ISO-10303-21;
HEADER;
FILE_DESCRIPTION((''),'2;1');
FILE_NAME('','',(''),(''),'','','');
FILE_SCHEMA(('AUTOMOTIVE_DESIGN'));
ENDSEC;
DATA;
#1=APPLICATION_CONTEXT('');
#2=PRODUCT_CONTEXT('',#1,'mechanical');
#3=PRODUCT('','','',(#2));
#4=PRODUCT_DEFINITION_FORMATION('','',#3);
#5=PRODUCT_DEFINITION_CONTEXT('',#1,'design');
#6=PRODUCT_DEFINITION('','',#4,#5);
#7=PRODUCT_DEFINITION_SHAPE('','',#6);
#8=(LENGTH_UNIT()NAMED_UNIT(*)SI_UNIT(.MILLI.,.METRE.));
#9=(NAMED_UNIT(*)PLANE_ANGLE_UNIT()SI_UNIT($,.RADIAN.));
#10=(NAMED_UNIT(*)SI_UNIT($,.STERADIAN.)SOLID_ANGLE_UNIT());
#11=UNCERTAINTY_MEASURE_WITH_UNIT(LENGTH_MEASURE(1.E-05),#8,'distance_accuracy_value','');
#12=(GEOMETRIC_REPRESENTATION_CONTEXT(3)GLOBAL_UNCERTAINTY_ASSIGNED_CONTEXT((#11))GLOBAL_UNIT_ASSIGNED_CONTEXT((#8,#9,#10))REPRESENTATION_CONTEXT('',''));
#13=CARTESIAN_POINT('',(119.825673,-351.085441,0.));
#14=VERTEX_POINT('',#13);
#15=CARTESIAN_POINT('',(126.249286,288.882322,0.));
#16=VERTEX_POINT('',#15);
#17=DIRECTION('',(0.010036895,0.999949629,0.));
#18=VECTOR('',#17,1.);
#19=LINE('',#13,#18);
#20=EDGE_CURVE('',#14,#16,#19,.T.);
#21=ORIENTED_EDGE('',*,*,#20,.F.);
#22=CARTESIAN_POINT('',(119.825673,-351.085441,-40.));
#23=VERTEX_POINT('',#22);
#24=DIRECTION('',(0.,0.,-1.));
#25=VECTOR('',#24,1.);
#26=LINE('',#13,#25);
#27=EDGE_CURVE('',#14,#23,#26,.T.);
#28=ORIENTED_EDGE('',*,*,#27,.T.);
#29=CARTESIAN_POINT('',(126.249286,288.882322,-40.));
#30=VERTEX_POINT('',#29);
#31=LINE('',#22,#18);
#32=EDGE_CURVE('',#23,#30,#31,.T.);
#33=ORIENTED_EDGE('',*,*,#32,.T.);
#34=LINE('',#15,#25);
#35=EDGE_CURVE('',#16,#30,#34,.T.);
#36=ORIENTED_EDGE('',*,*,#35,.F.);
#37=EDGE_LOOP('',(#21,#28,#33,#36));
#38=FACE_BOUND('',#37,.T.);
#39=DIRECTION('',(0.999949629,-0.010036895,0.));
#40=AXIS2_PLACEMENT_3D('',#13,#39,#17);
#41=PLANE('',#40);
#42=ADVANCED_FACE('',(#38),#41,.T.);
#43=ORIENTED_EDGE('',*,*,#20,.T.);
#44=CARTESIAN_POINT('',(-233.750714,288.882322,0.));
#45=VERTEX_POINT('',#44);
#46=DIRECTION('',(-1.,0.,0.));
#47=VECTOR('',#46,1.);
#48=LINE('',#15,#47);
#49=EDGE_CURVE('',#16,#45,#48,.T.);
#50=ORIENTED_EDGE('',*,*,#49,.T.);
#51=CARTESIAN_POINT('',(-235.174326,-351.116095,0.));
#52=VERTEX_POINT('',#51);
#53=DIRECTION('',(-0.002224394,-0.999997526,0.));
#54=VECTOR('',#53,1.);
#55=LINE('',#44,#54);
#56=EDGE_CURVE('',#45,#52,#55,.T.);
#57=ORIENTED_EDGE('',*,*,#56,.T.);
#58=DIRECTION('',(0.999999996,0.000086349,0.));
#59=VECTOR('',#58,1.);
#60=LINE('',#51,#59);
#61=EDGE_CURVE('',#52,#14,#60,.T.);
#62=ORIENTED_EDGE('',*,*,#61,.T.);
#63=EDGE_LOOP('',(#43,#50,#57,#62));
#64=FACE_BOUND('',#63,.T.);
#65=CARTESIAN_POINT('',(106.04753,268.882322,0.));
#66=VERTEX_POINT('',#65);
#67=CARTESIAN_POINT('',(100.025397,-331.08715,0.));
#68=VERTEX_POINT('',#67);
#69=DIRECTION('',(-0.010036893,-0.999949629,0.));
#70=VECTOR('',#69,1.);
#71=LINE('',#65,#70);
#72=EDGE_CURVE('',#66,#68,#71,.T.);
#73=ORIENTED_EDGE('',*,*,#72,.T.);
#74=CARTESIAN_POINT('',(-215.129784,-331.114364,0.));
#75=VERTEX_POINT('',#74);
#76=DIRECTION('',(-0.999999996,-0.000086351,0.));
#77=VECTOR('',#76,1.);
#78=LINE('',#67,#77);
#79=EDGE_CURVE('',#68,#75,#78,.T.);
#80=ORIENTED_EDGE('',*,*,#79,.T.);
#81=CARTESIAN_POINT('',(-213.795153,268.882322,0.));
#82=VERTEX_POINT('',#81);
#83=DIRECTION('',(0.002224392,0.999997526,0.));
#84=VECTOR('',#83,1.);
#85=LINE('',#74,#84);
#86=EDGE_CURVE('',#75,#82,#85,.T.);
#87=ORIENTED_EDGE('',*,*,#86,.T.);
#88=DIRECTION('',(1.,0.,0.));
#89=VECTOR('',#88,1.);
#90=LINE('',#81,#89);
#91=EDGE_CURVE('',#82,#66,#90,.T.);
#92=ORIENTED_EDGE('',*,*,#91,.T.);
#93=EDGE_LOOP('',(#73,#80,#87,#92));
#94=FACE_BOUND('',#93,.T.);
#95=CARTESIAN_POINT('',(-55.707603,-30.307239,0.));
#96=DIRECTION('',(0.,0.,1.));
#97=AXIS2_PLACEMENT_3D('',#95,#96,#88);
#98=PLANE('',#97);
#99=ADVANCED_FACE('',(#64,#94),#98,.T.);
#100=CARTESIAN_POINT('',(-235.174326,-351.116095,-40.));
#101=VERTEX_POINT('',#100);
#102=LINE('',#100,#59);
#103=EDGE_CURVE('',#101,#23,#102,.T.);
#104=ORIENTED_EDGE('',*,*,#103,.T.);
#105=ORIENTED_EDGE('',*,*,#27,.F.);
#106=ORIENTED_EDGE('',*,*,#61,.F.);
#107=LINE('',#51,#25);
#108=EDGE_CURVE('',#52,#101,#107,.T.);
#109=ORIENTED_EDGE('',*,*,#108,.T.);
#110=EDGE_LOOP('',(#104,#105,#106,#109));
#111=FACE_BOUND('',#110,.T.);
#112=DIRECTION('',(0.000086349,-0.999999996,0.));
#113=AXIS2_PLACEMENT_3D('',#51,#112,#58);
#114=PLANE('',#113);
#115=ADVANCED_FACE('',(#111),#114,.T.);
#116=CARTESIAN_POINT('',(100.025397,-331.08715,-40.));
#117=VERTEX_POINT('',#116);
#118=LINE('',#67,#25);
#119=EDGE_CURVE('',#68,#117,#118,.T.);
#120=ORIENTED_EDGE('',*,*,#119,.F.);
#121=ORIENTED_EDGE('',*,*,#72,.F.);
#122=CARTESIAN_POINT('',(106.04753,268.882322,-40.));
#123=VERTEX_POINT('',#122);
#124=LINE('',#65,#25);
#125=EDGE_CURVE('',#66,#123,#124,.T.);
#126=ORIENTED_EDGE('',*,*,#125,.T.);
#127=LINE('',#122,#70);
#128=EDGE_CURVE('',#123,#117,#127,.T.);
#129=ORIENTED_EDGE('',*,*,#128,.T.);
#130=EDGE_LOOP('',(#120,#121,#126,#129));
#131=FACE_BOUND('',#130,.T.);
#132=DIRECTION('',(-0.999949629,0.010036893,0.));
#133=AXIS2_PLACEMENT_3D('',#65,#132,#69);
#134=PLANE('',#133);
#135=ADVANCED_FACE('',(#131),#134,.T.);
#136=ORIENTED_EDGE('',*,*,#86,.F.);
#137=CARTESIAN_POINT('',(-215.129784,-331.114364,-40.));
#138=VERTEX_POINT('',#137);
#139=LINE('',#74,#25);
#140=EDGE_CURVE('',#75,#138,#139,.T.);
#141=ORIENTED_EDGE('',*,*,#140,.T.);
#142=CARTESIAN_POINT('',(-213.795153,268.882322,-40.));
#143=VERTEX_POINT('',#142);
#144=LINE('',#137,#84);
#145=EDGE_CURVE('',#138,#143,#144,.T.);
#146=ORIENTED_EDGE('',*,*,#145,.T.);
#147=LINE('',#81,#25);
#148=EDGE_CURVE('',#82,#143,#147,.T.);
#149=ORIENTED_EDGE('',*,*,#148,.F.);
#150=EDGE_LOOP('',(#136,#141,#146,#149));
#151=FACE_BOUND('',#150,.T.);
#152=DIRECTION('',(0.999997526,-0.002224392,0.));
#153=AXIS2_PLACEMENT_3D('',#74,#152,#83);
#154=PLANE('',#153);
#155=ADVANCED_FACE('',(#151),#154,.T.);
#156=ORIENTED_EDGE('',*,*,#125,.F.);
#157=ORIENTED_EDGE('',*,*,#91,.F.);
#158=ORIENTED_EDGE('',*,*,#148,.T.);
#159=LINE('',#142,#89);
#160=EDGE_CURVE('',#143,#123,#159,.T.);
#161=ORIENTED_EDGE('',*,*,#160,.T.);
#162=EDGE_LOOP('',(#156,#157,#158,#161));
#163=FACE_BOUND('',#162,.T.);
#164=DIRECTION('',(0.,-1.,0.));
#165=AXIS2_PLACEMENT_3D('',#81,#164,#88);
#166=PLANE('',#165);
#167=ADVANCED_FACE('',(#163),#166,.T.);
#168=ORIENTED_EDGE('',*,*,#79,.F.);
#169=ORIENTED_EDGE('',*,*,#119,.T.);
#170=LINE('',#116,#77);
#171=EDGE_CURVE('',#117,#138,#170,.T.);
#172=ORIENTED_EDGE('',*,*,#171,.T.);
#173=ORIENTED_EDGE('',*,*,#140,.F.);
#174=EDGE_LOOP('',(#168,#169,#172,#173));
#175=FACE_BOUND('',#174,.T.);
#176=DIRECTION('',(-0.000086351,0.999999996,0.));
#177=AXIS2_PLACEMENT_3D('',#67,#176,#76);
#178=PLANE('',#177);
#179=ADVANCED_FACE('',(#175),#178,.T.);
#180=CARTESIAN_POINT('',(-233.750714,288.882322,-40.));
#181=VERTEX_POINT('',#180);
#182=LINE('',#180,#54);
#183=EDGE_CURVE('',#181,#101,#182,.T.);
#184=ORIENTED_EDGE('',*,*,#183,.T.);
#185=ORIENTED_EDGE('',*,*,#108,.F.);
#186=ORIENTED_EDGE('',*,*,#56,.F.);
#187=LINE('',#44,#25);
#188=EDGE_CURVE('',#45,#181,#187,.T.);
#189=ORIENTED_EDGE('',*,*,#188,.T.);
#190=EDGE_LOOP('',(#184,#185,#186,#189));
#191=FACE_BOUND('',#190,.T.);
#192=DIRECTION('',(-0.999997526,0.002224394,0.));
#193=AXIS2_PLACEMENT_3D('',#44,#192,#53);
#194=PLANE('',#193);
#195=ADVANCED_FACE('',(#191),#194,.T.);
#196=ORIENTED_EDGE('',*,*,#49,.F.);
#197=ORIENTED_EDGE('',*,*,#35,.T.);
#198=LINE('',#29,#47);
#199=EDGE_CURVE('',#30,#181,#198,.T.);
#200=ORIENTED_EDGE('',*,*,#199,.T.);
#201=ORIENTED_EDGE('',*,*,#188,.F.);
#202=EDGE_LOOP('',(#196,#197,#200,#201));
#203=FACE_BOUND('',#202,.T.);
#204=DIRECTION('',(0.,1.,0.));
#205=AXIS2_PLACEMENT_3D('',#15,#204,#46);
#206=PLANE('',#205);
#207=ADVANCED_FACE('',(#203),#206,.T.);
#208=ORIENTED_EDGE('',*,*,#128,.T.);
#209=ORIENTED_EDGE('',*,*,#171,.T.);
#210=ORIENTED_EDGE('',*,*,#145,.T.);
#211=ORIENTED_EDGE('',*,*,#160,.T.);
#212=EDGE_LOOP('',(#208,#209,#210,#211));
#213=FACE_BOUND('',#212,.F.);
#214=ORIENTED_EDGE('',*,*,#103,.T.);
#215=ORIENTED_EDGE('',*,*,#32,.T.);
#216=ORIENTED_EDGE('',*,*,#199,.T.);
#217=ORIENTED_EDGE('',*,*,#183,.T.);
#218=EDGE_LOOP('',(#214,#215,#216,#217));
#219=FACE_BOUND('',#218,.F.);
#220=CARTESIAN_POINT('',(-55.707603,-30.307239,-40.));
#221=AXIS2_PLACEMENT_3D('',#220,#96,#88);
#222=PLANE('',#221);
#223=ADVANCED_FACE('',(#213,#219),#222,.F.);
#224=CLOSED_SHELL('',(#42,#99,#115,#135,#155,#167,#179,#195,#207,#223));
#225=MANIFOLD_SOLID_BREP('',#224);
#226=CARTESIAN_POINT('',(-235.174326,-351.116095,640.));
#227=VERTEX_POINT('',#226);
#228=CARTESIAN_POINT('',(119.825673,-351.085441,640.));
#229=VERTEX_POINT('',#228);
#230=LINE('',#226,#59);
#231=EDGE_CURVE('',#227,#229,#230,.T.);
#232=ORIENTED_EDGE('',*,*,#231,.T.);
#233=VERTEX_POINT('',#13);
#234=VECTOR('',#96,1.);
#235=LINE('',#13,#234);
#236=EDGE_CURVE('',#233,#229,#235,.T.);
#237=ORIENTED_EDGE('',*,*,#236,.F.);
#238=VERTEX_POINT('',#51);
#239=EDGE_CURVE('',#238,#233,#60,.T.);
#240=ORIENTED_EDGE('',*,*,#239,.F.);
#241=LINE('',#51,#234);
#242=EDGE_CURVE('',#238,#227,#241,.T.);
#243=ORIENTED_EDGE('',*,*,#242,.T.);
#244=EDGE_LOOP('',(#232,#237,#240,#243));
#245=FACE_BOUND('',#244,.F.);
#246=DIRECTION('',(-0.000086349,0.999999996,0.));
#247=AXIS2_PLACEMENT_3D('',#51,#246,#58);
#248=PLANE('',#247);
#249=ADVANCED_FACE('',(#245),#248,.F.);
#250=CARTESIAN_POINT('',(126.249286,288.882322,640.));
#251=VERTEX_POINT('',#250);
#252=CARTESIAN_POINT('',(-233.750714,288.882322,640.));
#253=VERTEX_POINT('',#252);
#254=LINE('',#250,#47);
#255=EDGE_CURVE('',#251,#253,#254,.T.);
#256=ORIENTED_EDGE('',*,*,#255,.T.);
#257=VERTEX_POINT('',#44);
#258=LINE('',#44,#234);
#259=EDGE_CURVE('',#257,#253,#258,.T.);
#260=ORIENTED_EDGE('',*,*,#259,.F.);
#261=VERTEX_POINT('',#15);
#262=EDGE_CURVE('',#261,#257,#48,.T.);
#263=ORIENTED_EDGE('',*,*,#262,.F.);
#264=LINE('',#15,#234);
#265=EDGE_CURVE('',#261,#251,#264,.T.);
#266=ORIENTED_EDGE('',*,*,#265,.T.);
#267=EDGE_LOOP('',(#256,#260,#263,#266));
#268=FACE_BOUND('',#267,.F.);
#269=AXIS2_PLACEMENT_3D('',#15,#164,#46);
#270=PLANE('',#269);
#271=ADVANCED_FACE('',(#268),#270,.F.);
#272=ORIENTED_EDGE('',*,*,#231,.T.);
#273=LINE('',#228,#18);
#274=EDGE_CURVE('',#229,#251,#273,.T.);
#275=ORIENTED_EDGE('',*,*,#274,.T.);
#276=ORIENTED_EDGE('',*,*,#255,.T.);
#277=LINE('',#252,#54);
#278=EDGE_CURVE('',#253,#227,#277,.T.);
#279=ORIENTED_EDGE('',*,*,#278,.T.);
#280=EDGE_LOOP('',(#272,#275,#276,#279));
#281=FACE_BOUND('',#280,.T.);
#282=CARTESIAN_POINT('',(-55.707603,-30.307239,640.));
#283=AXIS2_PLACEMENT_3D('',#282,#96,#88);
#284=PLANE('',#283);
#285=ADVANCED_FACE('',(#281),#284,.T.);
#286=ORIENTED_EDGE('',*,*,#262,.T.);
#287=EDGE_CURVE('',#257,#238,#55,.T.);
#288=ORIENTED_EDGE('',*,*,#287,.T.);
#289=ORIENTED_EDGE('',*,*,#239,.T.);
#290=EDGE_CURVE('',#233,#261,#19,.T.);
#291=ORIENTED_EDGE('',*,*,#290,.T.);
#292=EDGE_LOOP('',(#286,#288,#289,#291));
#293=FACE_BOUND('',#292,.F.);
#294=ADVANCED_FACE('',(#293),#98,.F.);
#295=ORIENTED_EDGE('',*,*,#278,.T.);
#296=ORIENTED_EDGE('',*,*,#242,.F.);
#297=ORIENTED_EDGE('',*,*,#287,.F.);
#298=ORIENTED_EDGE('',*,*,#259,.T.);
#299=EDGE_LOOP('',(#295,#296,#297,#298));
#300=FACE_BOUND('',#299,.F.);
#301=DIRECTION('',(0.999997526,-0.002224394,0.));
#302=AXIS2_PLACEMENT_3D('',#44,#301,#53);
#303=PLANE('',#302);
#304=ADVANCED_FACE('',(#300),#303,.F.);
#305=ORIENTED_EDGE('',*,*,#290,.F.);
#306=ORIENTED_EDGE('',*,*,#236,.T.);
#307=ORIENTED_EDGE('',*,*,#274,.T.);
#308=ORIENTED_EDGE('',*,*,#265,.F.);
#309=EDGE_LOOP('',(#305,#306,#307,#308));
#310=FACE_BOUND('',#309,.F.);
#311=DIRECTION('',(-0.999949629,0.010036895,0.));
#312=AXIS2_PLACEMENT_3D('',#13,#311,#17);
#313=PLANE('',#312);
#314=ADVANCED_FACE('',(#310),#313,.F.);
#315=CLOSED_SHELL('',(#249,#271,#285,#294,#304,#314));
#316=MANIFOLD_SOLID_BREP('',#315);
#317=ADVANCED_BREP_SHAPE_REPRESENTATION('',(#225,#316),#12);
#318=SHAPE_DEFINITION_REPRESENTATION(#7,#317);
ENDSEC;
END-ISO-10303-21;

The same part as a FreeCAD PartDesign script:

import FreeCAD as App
import Part
import Sketcher

V = App.Vector


def add_polygon(sketch, points):
    """Adds a closed chain of lines whose ends are joined by coincident constraints."""
    first, n = sketch.GeometryCount, len(points)
    for a, b in zip(points, points[1:] + points[:1]):
        sketch.addGeometry(Part.LineSegment(App.Vector(*a, 0), App.Vector(*b, 0)), False)
    for i in range(n):
        sketch.addConstraint(Sketcher.Constraint("Coincident", first + i, 2, first + (i + 1) % n, 1))

doc = App.newDocument("Part")
body = doc.addObject("PartDesign::Body", "Body")

sketch1 = doc.addObject("Sketcher::SketchObject", "Sketch")
body.addObject(sketch1)
sketch1.AttachmentSupport = (doc.XY_Plane, [""])
sketch1.MapMode = "FlatFace"
add_polygon(sketch1, [(126.249286, 288.882322), (-233.750714, 288.882322), (-235.174326, -351.116095), (119.825673, -351.085441)])
sketch1.addConstraint(Sketcher.Constraint("Horizontal", 0))
sketch1.addConstraint(Sketcher.Constraint("Equal", 1, 3))
sketch1.addConstraint(Sketcher.Constraint("DistanceX", 0, 2, 0, 1, 360.0))
sketch1.addConstraint(Sketcher.Constraint("Distance", 1, 640.0))
sketch1.addConstraint(Sketcher.Constraint("Distance", 2, 355.0))
sketch1.addConstraint(Sketcher.Constraint("DistanceY", -1, 1, 0, 2, 288.882322))
sketch1.addConstraint(Sketcher.Constraint("DistanceY", 2, 2, -1, 1, 351.085441))
sketch1.addConstraint(Sketcher.Constraint("DistanceX", 0, 2, -1, 1, 233.750714))
pad1 = doc.addObject("PartDesign::Pad", "Pad")
body.addObject(pad1)
pad1.Profile = sketch1
pad1.Length = 640
body2 = doc.addObject("PartDesign::Body", "Body001")

sketch2 = doc.addObject("Sketcher::SketchObject", "Sketch001")
body2.addObject(sketch2)
sketch2.AttachmentSupport = (doc.getObject("XY_Plane001"), [""])
sketch2.MapMode = "FlatFace"
add_polygon(sketch2, [(126.249286, 288.882322), (-233.750714, 288.882322), (-235.174326, -351.116095), (119.825673, -351.085441)])
add_polygon(sketch2, [(100.025397, -331.08715), (-215.129784, -331.114364), (-213.795153, 268.882322), (106.04753, 268.882322)])
sketch2.addConstraint(Sketcher.Constraint("Horizontal", 0))
sketch2.addConstraint(Sketcher.Constraint("Horizontal", 6))
sketch2.addConstraint(Sketcher.Constraint("DistanceX", 0, 2, 0, 1, 360.0))
sketch2.addConstraint(Sketcher.Constraint("Distance", 1, 640.0))
sketch2.addConstraint(Sketcher.Constraint("Distance", 2, 355.0))
sketch2.addConstraint(Sketcher.Constraint("Distance", 3, 640.0))
sketch2.addConstraint(Sketcher.Constraint("DistanceY", 5, 2, 0, 2, 20.0))
sketch2.addConstraint(Sketcher.Constraint("Distance", 5, 599.99817))
sketch2.addConstraint(Sketcher.Constraint("DistanceX", 6, 1, 6, 2, 319.842683))
sketch2.addConstraint(Sketcher.Constraint("DistanceY", -1, 1, 0, 2, 288.882322))
sketch2.addConstraint(Sketcher.Constraint("DistanceY", 2, 2, -1, 1, 351.085441))
sketch2.addConstraint(Sketcher.Constraint("DistanceX", -1, 1, 6, 2, 106.04753))
sketch2.addConstraint(Sketcher.Constraint("DistanceY", 7, 2, -1, 1, 331.08715))
sketch2.addConstraint(Sketcher.Constraint("DistanceX", 0, 2, 4, 2, 18.62093))
sketch2.addConstraint(Sketcher.Constraint("DistanceX", 0, 2, 5, 2, 19.955561))
sketch2.addConstraint(Sketcher.Constraint("DistanceX", 4, 2, 7, 2, 315.155181))
pad2 = doc.addObject("PartDesign::Pad", "Pad001")
body2.addObject(pad2)
pad2.Profile = sketch2
pad2.Length = 40
pad2.Reversed = True

doc.recompute()
